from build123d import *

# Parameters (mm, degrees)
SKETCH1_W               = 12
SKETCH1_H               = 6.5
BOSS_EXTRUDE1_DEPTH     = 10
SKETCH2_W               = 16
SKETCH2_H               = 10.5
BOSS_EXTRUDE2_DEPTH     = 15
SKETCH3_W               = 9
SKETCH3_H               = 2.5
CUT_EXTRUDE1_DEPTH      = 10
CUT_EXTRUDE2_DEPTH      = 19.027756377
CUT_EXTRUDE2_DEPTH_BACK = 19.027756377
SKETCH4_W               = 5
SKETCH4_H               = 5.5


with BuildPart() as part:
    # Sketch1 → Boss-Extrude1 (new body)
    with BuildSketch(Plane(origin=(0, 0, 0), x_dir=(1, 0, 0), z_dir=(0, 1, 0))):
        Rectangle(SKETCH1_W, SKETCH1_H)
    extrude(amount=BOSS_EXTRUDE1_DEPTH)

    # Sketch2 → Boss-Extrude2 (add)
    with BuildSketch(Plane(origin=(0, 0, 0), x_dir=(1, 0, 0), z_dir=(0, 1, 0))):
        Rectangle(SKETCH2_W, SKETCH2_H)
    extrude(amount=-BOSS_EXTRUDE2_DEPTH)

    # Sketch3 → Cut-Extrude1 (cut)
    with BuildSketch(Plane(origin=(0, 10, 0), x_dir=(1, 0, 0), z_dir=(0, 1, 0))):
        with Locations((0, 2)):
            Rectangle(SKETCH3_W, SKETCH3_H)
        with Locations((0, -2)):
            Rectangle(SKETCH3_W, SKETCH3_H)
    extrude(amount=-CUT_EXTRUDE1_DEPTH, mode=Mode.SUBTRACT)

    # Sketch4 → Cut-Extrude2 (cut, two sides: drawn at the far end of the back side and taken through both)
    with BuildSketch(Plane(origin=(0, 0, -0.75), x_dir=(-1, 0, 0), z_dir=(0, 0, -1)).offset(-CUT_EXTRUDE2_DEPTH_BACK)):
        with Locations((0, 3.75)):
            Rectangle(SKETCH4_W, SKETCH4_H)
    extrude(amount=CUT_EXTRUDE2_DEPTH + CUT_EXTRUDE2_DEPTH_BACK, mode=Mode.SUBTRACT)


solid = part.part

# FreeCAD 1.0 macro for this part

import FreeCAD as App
import Part
import Sketcher

V = App.Vector

doc = App.newDocument("Part")
body = doc.addObject("PartDesign::Body", "Body")

sketch1 = body.newObject("Sketcher::SketchObject", "Sketch")
sketch1.AttachmentSupport = (doc.getObject("XZ_Plane"), [""])
sketch1.MapMode = "FlatFace"
sketch1.addGeometry([
    Part.LineSegment(V(-6, -3, 0), V(-6, 3, 0)),
    Part.LineSegment(V(-6, 3, 0), V(6, 3, 0)),
    Part.LineSegment(V(6, 3, 0), V(6, -3, 0)),
    Part.LineSegment(V(6, -3, 0), V(-6, -3, 0)),
], False)
sketch1.addConstraint([
    Sketcher.Constraint("Coincident", 0, 2, 1, 1),
    Sketcher.Constraint("Coincident", 1, 2, 2, 1),
    Sketcher.Constraint("Coincident", 2, 2, 3, 1),
    Sketcher.Constraint("Coincident", 3, 2, 0, 1),
    Sketcher.Constraint("Vertical", 0),
    Sketcher.Constraint("Horizontal", 1),
    Sketcher.Constraint("Vertical", 2),
    Sketcher.Constraint("Horizontal", 3),
    Sketcher.Constraint("Symmetric", 0, 2, 2, 2, -1, 1),
    Sketcher.Constraint("DistanceX", 1, 1, 1, 2, 12.0),
    Sketcher.Constraint("DistanceY", 0, 1, 0, 2, 6.5),
])
pad1 = body.newObject("PartDesign::Pad", "Pad")
pad1.Profile = sketch1
pad1.Length = 10
pad1.Reversed = True

sketch2 = body.newObject("Sketcher::SketchObject", "Sketch001")
sketch2.AttachmentSupport = (doc.getObject("XZ_Plane"), [""])
sketch2.MapMode = "FlatFace"
sketch2.addGeometry([
    Part.LineSegment(V(-8, -5, 0), V(-8, 5, 0)),
    Part.LineSegment(V(-8, 5, 0), V(8, 5, 0)),
    Part.LineSegment(V(8, 5, 0), V(8, -5, 0)),
    Part.LineSegment(V(8, -5, 0), V(-8, -5, 0)),
], False)
sketch2.addConstraint([
    Sketcher.Constraint("Coincident", 0, 2, 1, 1),
    Sketcher.Constraint("Coincident", 1, 2, 2, 1),
    Sketcher.Constraint("Coincident", 2, 2, 3, 1),
    Sketcher.Constraint("Coincident", 3, 2, 0, 1),
    Sketcher.Constraint("Vertical", 0),
    Sketcher.Constraint("Horizontal", 1),
    Sketcher.Constraint("Vertical", 2),
    Sketcher.Constraint("Horizontal", 3),
    Sketcher.Constraint("Symmetric", 0, 2, 2, 2, -1, 1),
    Sketcher.Constraint("DistanceX", 1, 1, 1, 2, 16.0),
    Sketcher.Constraint("DistanceY", 0, 1, 0, 2, 10.5),
])
pad2 = body.newObject("PartDesign::Pad", "Pad001")
pad2.Profile = sketch2
pad2.Length = 15

sketch3 = body.newObject("Sketcher::SketchObject", "Sketch002")
sketch3.AttachmentSupport = (doc.getObject("XZ_Plane"), [""])
sketch3.MapMode = "FlatFace"
sketch3.AttachmentOffset = App.Placement(V(0, 0, -10), App.Rotation())
sketch3.addGeometry([
    Part.LineSegment(V(-4.5, -3.2, 0), V(-4.5, -0.8, 0)),
    Part.LineSegment(V(-4.5, -0.8, 0), V(4.5, -0.8, 0)),
    Part.LineSegment(V(4.5, -0.8, 0), V(4.5, -3.2, 0)),
    Part.LineSegment(V(4.5, -3.2, 0), V(-4.5, -3.2, 0)),
    Part.LineSegment(V(-4.5, 0.8, 0), V(-4.5, 3.2, 0)),
    Part.LineSegment(V(-4.5, 3.2, 0), V(4.5, 3.2, 0)),
    Part.LineSegment(V(4.5, 3.2, 0), V(4.5, 0.8, 0)),
    Part.LineSegment(V(4.5, 0.8, 0), V(-4.5, 0.8, 0)),
], False)
sketch3.addConstraint([
    Sketcher.Constraint("Coincident", 0, 2, 1, 1),
    Sketcher.Constraint("Coincident", 1, 2, 2, 1),
    Sketcher.Constraint("Coincident", 2, 2, 3, 1),
    Sketcher.Constraint("Coincident", 3, 2, 0, 1),
    Sketcher.Constraint("Coincident", 4, 2, 5, 1),
    Sketcher.Constraint("Coincident", 5, 2, 6, 1),
    Sketcher.Constraint("Coincident", 6, 2, 7, 1),
    Sketcher.Constraint("Coincident", 7, 2, 4, 1),
    Sketcher.Constraint("Vertical", 0),
    Sketcher.Constraint("Horizontal", 1),
    Sketcher.Constraint("Vertical", 2),
    Sketcher.Constraint("Horizontal", 3),
    Sketcher.Constraint("Vertical", 4),
    Sketcher.Constraint("Horizontal", 5),
    Sketcher.Constraint("Vertical", 6),
    Sketcher.Constraint("Horizontal", 7),
    Sketcher.Constraint("Symmetric", 2, 2, 4, 2, -1, 1),
    Sketcher.Constraint("Symmetric", 0, 2, 6, 2, -1, 1),
    Sketcher.Constraint("Vertical", 3, 2, 4, 2),
    Sketcher.Constraint("DistanceX", 1, 1, 1, 2, 9.0),
    Sketcher.Constraint("DistanceY", 0, 1, 0, 2, 2.5),
    Sketcher.Constraint("DistanceY", 0, 2, 4, 2, 4.0),
])
pocket1 = body.newObject("PartDesign::Pocket", "Pocket")
pocket1.Profile = sketch3
pocket1.Length = 10
pocket1.Reversed = True

sketch4 = body.newObject("Sketcher::SketchObject", "Sketch003")
sketch4.AttachmentSupport = (doc.getObject("XY_Plane"), [""])
sketch4.MapMode = "FlatFace"
sketch4.AttachmentOffset = App.Placement(V(0, 0, -0.75), App.Rotation())
sketch4.addGeometry([
    Part.LineSegment(V(2, 6, 0), V(2, 1, 0)),
    Part.LineSegment(V(2, 1, 0), V(-2, 1, 0)),
    Part.LineSegment(V(-2, 1, 0), V(-2, 6, 0)),
    Part.LineSegment(V(-2, 6, 0), V(2, 6, 0)),
], False)
sketch4.addConstraint([
    Sketcher.Constraint("Coincident", 0, 2, 1, 1),
    Sketcher.Constraint("Coincident", 1, 2, 2, 1),
    Sketcher.Constraint("Coincident", 2, 2, 3, 1),
    Sketcher.Constraint("Coincident", 3, 2, 0, 1),
    Sketcher.Constraint("Vertical", 0),
    Sketcher.Constraint("Horizontal", 1),
    Sketcher.Constraint("Vertical", 2),
    Sketcher.Constraint("Horizontal", 3),
    Sketcher.Constraint("DistanceX", 1, 2, 1, 1, 5.0),
    Sketcher.Constraint("DistanceY", 0, 2, 0, 1, 5.5),
    Sketcher.Constraint("DistanceY", -1, 1, 0, 2, 1.0),
    Sketcher.Constraint("DistanceX", -1, 1, 0, 2, 2.5),
])
pocket2 = body.newObject("PartDesign::Pocket", "Pocket001")
pocket2.Profile = sketch4
pocket2.Type = "ThroughAll"
pocket2.Midplane = True

doc.recompute()
